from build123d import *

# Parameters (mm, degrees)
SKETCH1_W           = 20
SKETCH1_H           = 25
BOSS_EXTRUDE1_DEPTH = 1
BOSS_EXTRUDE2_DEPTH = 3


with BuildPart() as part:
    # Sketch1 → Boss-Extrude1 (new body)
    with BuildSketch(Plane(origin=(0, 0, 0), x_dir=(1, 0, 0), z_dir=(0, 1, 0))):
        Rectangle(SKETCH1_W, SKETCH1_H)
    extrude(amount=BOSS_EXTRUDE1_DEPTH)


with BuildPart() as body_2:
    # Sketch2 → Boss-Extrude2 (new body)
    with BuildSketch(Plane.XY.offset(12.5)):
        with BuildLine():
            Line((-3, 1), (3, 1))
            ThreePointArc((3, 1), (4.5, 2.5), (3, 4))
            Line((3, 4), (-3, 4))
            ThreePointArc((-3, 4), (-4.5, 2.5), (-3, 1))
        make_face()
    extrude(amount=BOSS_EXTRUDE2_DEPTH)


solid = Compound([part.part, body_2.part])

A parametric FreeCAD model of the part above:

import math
import FreeCAD as App
import Part
import Sketcher
from FreeCAD import Vector

doc = App.newDocument("Part")
body = doc.addObject("PartDesign::Body", "Body")

# Sketch on XZ plane
sketch1 = body.newObject("Sketcher::SketchObject", "Sketch")
sketch1.AttachmentSupport = (doc.getObject("XZ_Plane"), [""])
sketch1.MapMode = "FlatFace"
sketch1.addGeometry(Part.LineSegment(Vector(-10, -12, 0), Vector(-10, 12, 0)), False)
sketch1.addGeometry(Part.LineSegment(Vector(-10, 12, 0), Vector(10, 12, 0)), False)
sketch1.addGeometry(Part.LineSegment(Vector(10, 12, 0), Vector(10, -12, 0)), False)
sketch1.addGeometry(Part.LineSegment(Vector(10, -12, 0), Vector(-10, -12, 0)), False)
sketch1.addConstraint(Sketcher.Constraint("Coincident", 0, 2, 1, 1))
sketch1.addConstraint(Sketcher.Constraint("Coincident", 1, 2, 2, 1))
sketch1.addConstraint(Sketcher.Constraint("Coincident", 2, 2, 3, 1))
sketch1.addConstraint(Sketcher.Constraint("Coincident", 3, 2, 0, 1))
sketch1.addConstraint(Sketcher.Constraint("Vertical", 0))
sketch1.addConstraint(Sketcher.Constraint("Horizontal", 1))
sketch1.addConstraint(Sketcher.Constraint("Vertical", 2))
sketch1.addConstraint(Sketcher.Constraint("Horizontal", 3))
sketch1.addConstraint(Sketcher.Constraint("Symmetric", 0, 2, 2, 2, -1, 1))
sketch1.addConstraint(Sketcher.Constraint("DistanceX", 1, 1, 1, 2, 20.0))
sketch1.addConstraint(Sketcher.Constraint("DistanceY", 0, 1, 0, 2, 25.0))
pad1 = body.newObject("PartDesign::Pad", "Pad")
pad1.Profile = sketch1
pad1.Length = 1
pad1.Reversed = True
body2 = doc.addObject("PartDesign::Body", "Body001")

# Sketch on XY plane
sketch2 = body2.newObject("Sketcher::SketchObject", "Sketch001")
sketch2.AttachmentSupport = (doc.getObject("XY_Plane001"), [""])
sketch2.MapMode = "FlatFace"
sketch2.AttachmentOffset = App.Placement(Vector(0, 0, 12.5), App.Rotation())
sketch2.addGeometry(Part.LineSegment(Vector(-3, 1, 0), Vector(3, 1, 0)), False)
sketch2.addGeometry(Part.ArcOfCircle(Part.Circle(Vector(3, 2.5, 0), Vector(0, 0, 1), 1.5), math.radians(-90), math.radians(90)), False)
sketch2.addGeometry(Part.LineSegment(Vector(3, 4, 0), Vector(-3, 4, 0)), False)
sketch2.addGeometry(Part.ArcOfCircle(Part.Circle(Vector(-3, 2.5, 0), Vector(0, 0, 1), 1.5), math.radians(90), math.radians(270)), False)
sketch2.addConstraint(Sketcher.Constraint("Tangent", 0, 2, 1, 1))
sketch2.addConstraint(Sketcher.Constraint("Tangent", 1, 2, 2, 1))
sketch2.addConstraint(Sketcher.Constraint("Tangent", 2, 2, 3, 1))
sketch2.addConstraint(Sketcher.Constraint("Tangent", 3, 2, 0, 1))
sketch2.addConstraint(Sketcher.Constraint("Horizontal", 0))
sketch2.addConstraint(Sketcher.Constraint("Horizontal", 2))
sketch2.addConstraint(Sketcher.Constraint("Radius", 1, 1.5))
sketch2.addConstraint(Sketcher.Constraint("DistanceX", 0, 1, 0, 2, 6.0))
sketch2.addConstraint(Sketcher.Constraint("DistanceX", -1, 1, 1, 3, 3.0))
sketch2.addConstraint(Sketcher.Constraint("DistanceY", -1, 1, 0, 2, 1.0))
pad2 = body2.newObject("PartDesign::Pad", "Pad001")
pad2.Profile = sketch2
pad2.Length = 3

doc.recompute()
